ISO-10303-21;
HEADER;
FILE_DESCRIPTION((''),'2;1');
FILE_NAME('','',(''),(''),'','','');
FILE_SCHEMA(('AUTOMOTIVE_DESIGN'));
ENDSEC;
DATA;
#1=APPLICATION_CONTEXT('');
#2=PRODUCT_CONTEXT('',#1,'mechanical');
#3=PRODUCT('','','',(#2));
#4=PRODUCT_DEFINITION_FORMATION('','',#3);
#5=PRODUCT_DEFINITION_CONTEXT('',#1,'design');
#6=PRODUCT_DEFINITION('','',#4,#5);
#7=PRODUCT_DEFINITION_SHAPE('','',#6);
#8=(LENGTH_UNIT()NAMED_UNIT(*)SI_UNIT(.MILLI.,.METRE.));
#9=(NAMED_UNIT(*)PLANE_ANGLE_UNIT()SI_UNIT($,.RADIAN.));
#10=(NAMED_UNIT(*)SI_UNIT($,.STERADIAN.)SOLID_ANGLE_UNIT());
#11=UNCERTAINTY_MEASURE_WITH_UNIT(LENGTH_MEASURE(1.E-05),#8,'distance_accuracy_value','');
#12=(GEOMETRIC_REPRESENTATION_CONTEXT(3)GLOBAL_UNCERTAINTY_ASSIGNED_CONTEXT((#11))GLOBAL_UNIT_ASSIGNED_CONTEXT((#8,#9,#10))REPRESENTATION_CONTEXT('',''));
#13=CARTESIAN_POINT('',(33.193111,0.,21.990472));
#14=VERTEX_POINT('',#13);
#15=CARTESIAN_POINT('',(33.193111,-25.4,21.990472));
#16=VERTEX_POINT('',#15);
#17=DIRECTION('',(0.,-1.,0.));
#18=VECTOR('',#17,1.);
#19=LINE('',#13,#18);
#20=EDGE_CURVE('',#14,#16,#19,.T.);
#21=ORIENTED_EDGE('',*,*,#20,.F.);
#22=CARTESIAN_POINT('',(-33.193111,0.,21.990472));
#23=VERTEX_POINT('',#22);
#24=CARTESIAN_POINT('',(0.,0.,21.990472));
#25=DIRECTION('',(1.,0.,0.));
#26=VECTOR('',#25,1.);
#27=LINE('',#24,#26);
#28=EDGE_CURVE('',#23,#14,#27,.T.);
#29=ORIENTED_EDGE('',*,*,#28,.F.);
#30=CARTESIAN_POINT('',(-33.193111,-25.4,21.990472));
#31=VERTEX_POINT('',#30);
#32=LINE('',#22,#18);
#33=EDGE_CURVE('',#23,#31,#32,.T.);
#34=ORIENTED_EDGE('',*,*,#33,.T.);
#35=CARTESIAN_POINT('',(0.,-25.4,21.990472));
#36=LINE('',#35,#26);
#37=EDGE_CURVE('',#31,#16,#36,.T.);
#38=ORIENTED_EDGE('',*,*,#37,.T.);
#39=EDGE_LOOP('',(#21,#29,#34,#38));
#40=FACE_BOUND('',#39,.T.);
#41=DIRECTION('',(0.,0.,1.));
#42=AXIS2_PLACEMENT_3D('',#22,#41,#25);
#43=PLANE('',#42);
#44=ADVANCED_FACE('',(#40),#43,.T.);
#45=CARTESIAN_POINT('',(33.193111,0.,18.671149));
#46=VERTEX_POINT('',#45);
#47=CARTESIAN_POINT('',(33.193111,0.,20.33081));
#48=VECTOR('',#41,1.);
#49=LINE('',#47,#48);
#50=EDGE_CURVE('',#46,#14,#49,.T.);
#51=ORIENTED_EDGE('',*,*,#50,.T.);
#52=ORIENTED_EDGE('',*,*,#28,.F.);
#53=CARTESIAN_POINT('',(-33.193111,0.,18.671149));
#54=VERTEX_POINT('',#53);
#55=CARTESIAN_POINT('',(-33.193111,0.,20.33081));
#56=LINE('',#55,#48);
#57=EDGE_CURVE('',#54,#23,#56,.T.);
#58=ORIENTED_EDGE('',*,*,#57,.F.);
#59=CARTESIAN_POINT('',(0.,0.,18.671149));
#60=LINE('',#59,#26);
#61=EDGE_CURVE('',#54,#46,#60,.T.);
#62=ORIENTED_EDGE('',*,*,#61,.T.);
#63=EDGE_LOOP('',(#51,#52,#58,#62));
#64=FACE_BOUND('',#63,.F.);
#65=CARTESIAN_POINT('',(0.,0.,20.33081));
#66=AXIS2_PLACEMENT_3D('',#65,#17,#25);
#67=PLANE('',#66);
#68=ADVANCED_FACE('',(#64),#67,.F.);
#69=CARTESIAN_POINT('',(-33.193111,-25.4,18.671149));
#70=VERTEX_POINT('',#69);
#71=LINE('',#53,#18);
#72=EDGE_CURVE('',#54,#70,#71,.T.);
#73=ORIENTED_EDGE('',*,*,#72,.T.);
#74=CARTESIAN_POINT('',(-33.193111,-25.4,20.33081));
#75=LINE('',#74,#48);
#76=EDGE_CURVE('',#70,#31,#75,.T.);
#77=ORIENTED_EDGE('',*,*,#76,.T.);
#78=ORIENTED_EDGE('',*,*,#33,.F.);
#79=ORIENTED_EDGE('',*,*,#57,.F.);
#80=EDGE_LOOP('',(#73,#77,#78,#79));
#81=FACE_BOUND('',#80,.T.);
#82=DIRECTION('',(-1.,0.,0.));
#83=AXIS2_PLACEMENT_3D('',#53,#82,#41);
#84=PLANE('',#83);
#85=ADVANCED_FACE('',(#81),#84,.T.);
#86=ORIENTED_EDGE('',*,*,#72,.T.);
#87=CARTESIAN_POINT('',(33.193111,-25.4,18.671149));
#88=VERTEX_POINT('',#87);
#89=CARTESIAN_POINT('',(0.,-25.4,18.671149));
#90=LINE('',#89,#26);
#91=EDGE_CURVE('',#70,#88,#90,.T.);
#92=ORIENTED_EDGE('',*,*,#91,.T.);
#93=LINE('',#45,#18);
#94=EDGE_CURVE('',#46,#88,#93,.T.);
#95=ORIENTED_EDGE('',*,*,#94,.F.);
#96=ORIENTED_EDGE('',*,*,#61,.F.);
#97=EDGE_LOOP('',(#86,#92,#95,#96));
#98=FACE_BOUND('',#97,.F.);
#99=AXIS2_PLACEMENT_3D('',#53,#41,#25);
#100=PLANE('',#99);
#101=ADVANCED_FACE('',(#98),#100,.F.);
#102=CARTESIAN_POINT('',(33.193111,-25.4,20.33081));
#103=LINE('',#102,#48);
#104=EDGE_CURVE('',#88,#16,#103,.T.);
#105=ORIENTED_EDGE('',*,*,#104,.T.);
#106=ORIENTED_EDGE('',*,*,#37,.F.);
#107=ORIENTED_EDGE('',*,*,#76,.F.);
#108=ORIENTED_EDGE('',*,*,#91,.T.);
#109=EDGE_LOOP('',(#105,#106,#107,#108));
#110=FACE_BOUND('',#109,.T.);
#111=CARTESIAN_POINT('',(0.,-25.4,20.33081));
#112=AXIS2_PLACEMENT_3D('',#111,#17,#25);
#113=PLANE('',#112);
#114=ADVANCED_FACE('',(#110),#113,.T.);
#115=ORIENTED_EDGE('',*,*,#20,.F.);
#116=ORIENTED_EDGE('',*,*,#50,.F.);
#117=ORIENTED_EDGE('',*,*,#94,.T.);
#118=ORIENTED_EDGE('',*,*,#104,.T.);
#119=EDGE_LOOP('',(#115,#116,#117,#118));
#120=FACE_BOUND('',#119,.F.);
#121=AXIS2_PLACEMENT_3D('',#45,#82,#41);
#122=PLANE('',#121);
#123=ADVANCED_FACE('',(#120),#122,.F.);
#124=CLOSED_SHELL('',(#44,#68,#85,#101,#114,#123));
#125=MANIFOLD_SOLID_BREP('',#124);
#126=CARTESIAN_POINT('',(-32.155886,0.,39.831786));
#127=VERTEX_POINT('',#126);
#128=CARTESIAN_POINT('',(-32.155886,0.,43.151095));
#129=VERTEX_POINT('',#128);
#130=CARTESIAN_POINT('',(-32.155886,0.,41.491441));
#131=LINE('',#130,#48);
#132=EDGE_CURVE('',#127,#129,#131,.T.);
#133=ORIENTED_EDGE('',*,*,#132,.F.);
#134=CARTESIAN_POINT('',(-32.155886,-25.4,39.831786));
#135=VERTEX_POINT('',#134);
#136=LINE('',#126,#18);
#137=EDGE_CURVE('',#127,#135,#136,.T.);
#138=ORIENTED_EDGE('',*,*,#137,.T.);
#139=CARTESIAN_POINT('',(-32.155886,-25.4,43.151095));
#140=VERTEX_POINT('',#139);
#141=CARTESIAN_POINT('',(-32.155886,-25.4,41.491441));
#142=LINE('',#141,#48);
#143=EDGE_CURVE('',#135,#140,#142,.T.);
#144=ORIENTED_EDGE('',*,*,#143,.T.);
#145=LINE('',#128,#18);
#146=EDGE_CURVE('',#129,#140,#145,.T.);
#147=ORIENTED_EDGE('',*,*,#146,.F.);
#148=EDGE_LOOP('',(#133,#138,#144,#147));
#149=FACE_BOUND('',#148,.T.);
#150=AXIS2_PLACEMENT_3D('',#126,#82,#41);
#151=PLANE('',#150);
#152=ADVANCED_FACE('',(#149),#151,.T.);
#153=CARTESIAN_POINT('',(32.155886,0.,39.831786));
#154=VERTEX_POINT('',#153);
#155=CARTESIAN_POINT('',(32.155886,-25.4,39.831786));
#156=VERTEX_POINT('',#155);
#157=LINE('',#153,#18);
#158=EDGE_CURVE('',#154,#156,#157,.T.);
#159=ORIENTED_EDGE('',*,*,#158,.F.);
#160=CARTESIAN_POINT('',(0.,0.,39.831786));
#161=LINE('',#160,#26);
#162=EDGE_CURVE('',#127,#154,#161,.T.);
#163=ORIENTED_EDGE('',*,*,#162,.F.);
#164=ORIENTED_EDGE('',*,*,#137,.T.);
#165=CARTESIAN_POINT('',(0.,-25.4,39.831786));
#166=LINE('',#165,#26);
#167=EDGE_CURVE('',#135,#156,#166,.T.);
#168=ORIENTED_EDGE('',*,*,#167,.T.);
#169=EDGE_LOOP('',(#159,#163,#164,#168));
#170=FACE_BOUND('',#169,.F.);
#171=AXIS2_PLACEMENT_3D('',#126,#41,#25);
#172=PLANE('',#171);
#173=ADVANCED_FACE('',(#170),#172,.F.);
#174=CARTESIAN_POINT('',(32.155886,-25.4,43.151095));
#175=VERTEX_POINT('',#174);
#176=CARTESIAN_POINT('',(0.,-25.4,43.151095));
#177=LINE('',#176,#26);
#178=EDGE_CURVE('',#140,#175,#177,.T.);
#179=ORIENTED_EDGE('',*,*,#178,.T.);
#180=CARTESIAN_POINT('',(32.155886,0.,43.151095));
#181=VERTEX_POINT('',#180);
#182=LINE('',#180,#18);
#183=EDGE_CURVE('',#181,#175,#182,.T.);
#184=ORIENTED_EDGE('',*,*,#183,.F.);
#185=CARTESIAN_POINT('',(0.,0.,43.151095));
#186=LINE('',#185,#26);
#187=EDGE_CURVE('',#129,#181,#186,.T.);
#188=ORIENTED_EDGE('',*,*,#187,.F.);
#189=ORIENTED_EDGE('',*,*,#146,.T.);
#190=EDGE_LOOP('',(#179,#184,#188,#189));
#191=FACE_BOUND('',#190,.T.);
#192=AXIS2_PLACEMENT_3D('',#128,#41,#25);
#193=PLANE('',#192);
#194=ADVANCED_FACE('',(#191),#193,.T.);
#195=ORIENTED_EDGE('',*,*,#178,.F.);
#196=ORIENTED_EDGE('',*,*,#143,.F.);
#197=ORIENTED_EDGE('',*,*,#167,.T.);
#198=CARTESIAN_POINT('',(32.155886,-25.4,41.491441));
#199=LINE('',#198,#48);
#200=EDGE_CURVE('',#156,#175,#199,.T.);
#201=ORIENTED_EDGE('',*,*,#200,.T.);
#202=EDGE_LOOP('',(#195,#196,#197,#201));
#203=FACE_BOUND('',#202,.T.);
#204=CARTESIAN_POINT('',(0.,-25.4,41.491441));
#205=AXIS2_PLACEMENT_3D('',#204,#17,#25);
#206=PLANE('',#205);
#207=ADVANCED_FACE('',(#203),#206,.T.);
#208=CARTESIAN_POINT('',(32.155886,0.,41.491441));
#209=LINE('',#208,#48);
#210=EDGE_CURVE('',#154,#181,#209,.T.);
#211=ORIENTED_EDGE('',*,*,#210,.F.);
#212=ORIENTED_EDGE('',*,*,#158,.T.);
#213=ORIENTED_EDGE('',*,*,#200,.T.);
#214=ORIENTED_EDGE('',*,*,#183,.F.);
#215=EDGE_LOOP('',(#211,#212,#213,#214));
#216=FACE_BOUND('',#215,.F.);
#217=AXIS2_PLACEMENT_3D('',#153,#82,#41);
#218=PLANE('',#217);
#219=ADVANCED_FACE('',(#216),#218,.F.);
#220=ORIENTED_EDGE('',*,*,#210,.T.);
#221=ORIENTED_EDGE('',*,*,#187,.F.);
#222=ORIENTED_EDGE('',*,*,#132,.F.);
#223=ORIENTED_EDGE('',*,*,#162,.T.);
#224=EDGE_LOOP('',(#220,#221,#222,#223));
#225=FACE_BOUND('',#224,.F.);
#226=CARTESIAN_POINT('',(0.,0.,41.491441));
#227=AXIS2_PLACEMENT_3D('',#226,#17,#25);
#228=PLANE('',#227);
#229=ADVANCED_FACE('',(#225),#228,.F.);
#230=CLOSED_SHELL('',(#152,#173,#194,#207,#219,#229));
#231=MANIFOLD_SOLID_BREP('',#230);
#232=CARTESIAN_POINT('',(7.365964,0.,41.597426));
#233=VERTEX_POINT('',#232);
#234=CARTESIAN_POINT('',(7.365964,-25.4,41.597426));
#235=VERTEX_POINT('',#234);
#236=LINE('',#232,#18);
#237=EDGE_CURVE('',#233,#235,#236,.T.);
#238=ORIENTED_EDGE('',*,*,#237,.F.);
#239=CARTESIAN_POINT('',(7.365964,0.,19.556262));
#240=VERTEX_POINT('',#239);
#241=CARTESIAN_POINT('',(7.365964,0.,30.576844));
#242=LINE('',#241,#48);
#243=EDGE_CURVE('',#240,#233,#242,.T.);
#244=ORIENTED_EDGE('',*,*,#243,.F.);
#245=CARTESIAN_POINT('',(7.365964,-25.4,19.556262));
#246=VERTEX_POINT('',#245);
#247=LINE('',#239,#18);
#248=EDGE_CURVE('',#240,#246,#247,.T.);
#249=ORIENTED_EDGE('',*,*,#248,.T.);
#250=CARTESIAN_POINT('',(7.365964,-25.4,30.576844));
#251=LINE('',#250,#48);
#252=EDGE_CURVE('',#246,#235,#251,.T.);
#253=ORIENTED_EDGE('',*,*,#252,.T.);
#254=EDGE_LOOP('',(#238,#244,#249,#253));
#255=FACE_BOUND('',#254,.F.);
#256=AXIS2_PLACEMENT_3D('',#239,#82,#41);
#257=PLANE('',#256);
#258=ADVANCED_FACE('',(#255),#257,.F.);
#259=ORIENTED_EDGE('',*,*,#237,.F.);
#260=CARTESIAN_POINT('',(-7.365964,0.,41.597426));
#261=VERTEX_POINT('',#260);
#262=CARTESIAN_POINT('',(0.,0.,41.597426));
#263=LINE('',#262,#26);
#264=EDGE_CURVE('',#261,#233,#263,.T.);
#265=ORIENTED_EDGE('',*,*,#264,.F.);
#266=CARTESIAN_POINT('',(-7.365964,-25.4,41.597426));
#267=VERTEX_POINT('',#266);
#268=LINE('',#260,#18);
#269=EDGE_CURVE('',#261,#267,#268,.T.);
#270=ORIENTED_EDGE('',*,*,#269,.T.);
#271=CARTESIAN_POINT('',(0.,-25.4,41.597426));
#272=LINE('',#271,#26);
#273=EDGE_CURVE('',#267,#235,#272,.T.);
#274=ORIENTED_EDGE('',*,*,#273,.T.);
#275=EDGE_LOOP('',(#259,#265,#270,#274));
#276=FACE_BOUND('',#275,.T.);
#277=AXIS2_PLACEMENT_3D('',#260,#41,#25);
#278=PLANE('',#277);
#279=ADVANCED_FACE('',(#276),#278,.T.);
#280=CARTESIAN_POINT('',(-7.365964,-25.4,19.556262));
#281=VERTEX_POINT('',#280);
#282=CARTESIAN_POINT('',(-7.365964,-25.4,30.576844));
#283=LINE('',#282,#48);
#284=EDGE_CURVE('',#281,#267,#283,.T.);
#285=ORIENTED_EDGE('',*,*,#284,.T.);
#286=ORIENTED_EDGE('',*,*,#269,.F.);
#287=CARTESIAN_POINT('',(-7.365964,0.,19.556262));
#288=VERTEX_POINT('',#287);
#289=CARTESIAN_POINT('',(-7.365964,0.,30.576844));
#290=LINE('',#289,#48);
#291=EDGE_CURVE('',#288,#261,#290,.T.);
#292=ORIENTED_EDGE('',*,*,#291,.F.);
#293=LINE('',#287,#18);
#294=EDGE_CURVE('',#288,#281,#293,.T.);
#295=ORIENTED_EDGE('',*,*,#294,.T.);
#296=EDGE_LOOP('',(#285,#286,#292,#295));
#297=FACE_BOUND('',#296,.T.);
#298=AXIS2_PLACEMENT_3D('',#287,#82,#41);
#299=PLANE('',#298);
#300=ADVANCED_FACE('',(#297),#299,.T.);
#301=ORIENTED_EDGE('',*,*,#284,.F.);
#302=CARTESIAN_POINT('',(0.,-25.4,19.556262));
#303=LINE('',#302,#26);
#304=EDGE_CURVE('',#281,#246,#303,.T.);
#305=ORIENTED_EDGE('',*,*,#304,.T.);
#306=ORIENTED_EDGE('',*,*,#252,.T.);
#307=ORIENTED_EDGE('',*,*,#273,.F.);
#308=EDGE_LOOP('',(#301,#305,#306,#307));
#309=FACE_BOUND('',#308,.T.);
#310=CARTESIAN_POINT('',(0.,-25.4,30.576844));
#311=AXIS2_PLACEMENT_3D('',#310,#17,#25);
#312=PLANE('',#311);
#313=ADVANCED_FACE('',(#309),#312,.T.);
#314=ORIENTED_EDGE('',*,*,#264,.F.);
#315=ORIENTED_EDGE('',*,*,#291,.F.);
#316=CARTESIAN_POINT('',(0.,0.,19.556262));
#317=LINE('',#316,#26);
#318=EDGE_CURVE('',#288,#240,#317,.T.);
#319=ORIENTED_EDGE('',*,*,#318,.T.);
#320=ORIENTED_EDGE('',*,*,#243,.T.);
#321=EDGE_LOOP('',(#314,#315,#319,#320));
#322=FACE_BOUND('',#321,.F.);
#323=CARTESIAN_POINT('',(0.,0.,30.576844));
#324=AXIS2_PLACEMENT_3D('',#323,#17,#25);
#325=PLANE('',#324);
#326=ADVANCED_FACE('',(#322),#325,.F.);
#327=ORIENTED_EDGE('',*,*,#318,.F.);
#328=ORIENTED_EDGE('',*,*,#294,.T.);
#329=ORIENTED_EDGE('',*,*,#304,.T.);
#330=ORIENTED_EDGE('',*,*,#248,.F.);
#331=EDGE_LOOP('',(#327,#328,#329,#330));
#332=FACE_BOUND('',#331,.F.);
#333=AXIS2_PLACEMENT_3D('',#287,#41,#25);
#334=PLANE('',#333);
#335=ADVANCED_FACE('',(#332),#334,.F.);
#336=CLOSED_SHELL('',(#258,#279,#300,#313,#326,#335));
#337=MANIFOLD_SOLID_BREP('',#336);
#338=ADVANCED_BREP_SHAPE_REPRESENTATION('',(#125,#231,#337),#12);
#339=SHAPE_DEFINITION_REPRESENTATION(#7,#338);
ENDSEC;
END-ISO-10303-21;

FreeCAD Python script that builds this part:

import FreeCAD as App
import Part
import Sketcher
Q = App.Units.Quantity


def add_polygon(sketch, points):
    """Adds a closed chain of lines whose ends are joined by coincident constraints."""
    first, n = sketch.GeometryCount, len(points)
    for a, b in zip(points, points[1:] + points[:1]):
        sketch.addGeometry(Part.LineSegment(App.Vector(*a, 0), App.Vector(*b, 0)), False)
    for i in range(n):
        sketch.addConstraint(Sketcher.Constraint("Coincident", first + i, 2, first + (i + 1) % n, 1))

doc = App.newDocument("Part")
body = doc.addObject("PartDesign::Body", "Body")
body.AllowCompound = True

# Sketch on XZ plane
sketch1 = body.newObject("Sketcher::SketchObject", "Sketch")
sketch1.AttachmentSupport = (doc.getObject("XZ_Plane"), [""])
sketch1.MapMode = "FlatFace"
add_polygon(sketch1, [(-33.2, 22), (-33.2, 18.7), (33.2, 18.7), (33.2, 22)])  # lines 0-3
add_polygon(sketch1, [(-32.2, 43.2), (-32.2, 39.8), (32.2, 39.8), (32.2, 43.2)])  # lines 4-7
sketch1.addConstraint([
    Sketcher.Constraint("Vertical", 0),
    Sketcher.Constraint("Horizontal", 1),
    Sketcher.Constraint("Vertical", 2),
    Sketcher.Constraint("Horizontal", 3),
    Sketcher.Constraint("Vertical", 4),
    Sketcher.Constraint("Horizontal", 5),
    Sketcher.Constraint("Vertical", 6),
    Sketcher.Constraint("Horizontal", 7),
    Sketcher.Constraint("DistanceY", 4, 2, 4, 1, Q("3.319309 mm")),
    Sketcher.Constraint("DistanceX", 1, 1, 1, 2, Q("66.386222 mm")),
    Sketcher.Constraint("DistanceX", 5, 1, 5, 2, Q("64.311772 mm")),
    Sketcher.Constraint("DistanceY", 0, 2, 0, 1, Q("3.319323 mm")),
    Sketcher.Constraint("DistanceX", 0, 2, -1, 1, Q("33.193111 mm")),
    Sketcher.Constraint("DistanceY", -1, 1, 0, 2, Q("18.671149 mm")),
    Sketcher.Constraint("DistanceX", 4, 2, -1, 1, Q("32.155886 mm")),
    Sketcher.Constraint("DistanceY", -1, 1, 4, 2, Q("39.831786 mm")),
])
pad1 = body.newObject("PartDesign::Pad", "Pad")
pad1.Profile = sketch1
pad1.Length = Q("1 in")
body2 = doc.addObject("PartDesign::Body", "Body001")

# Sketch on XZ plane
sketch2 = body2.newObject("Sketcher::SketchObject", "Sketch001")
sketch2.AttachmentSupport = (doc.getObject("XZ_Plane001"), [""])
sketch2.MapMode = "FlatFace"
add_polygon(sketch2, [(-7, 42), (-7, 20), (7, 20), (7, 42)])  # lines 0-3
sketch2.addConstraint([
    Sketcher.Constraint("Vertical", 0),
    Sketcher.Constraint("Horizontal", 1),
    Sketcher.Constraint("Vertical", 2),
    Sketcher.Constraint("Horizontal", 3),
    Sketcher.Constraint("DistanceX", 1, 1, 1, 2, Q("14.731928 mm")),
    Sketcher.Constraint("DistanceY", 0, 2, 0, 1, Q("22.041164 mm")),
    Sketcher.Constraint("DistanceY", -1, 1, 0, 2, Q("19.556262 mm")),
    Sketcher.Constraint("DistanceX", 0, 2, -1, 1, Q("7.365964 mm")),
])
pad2 = body2.newObject("PartDesign::Pad", "Pad001")
pad2.Profile = sketch2
pad2.Length = Q("1 in")

doc.recompute()
